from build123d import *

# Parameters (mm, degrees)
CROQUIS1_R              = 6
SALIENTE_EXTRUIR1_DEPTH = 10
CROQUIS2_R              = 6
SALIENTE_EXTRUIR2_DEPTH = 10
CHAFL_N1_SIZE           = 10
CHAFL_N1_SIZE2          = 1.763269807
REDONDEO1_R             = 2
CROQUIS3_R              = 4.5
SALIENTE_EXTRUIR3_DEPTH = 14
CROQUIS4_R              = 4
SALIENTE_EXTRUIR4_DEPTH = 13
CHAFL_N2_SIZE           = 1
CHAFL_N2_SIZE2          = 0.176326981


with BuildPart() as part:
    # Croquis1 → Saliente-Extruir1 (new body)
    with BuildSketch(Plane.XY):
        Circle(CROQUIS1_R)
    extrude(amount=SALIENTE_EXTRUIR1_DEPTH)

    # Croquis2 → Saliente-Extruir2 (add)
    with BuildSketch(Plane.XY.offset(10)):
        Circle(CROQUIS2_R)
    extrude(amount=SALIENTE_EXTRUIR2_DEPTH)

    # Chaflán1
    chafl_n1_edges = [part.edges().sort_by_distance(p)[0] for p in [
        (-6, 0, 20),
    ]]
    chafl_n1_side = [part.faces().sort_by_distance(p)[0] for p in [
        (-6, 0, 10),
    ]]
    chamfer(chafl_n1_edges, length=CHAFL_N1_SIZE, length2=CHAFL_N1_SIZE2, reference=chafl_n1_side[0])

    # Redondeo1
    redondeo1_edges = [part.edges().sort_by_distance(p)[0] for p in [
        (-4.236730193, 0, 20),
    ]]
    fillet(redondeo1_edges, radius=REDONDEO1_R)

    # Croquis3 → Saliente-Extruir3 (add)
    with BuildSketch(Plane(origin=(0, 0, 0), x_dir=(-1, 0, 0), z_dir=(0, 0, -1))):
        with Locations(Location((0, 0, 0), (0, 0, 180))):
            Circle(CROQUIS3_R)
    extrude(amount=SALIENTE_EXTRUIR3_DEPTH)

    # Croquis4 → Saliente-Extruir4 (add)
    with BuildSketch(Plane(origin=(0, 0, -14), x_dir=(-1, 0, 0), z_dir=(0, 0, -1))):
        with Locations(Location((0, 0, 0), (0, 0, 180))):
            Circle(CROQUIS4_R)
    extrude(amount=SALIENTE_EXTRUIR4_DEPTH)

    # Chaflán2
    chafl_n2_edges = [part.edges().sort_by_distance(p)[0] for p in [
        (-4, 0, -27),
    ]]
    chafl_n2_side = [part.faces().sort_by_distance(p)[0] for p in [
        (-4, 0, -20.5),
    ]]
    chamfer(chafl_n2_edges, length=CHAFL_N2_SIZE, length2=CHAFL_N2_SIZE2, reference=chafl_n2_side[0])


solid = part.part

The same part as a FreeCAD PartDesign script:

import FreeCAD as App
import Part
import Sketcher
Q = App.Units.Quantity


def edges_at(feature, points):
    """Names of the edges that pass closest to the given points."""
    edges = feature.Shape.Edges
    near = lambda p: min(range(len(edges)), key=lambda i: edges[i].distToShape(Part.Vertex(*p))[0])
    return sorted({f"Edge{near(p) + 1}" for p in points})

doc = App.newDocument("Part")
body = doc.addObject("PartDesign::Body", "Body")

sketch1 = doc.addObject("Sketcher::SketchObject", "Sketch")
body.addObject(sketch1)
sketch1.AttachmentSupport = (doc.XY_Plane, [""])
sketch1.MapMode = "FlatFace"
sketch1.addGeometry(Part.Circle(App.Vector(0, 0, 0), App.Vector(0, 0, 1), 6), False)
sketch1.addConstraint(Sketcher.Constraint("Coincident", 0, 3, -1, 1))
sketch1.addConstraint(Sketcher.Constraint("Diameter", 0, Q("12 mm")))
pad1 = doc.addObject("PartDesign::Pad", "Pad")
body.addObject(pad1)
pad1.Profile = sketch1
pad1.Length = 10

sketch2 = doc.addObject("Sketcher::SketchObject", "Sketch001")
body.addObject(sketch2)
sketch2.AttachmentSupport = (doc.XY_Plane, [""])
sketch2.MapMode = "FlatFace"
sketch2.AttachmentOffset = App.Placement(App.Vector(0, 0, 10), App.Rotation())
sketch2.addGeometry(Part.Circle(App.Vector(0, 0, 0), App.Vector(0, 0, 1), 6), False)
sketch2.addConstraint(Sketcher.Constraint("Coincident", 0, 3, -1, 1))
sketch2.addConstraint(Sketcher.Constraint("Diameter", 0, Q("12 mm")))
pad2 = doc.addObject("PartDesign::Pad", "Pad001")
body.addObject(pad2)
pad2.Profile = sketch2
pad2.Length = 10
doc.recompute()

chamfer = doc.addObject("PartDesign::Chamfer", "Chamfer")
body.addObject(chamfer)
chamfer.Base = (pad2, edges_at(pad2, [(-6, 0, 20)]))
chamfer.ChamferType = "Two distances"
chamfer.Size = 10
chamfer.Size2 = 1.76327
chamfer.FlipDirection = True
doc.recompute()

fillet = doc.addObject("PartDesign::Fillet", "Fillet")
body.addObject(fillet)
fillet.Base = (chamfer, edges_at(chamfer, [(-4.237, 0, 20)]))
fillet.Radius = 2

sketch3 = doc.addObject("Sketcher::SketchObject", "Sketch002")
body.addObject(sketch3)
sketch3.AttachmentSupport = (doc.XY_Plane, [""])
sketch3.MapMode = "FlatFace"
sketch3.addGeometry(Part.Circle(App.Vector(0, 0, 0), App.Vector(0, 0, 1), 4.5), False)
sketch3.addConstraint(Sketcher.Constraint("Coincident", 0, 3, -1, 1))
sketch3.addConstraint(Sketcher.Constraint("Diameter", 0, Q("9 mm")))
pad3 = doc.addObject("PartDesign::Pad", "Pad002")
body.addObject(pad3)
pad3.Profile = sketch3
pad3.Length = 14
pad3.Reversed = True

sketch4 = doc.addObject("Sketcher::SketchObject", "Sketch003")
body.addObject(sketch4)
sketch4.AttachmentSupport = (doc.XY_Plane, [""])
sketch4.MapMode = "FlatFace"
sketch4.AttachmentOffset = App.Placement(App.Vector(0, 0, -14), App.Rotation())
sketch4.addGeometry(Part.Circle(App.Vector(0, 0, 0), App.Vector(0, 0, 1), 4), False)
sketch4.addConstraint(Sketcher.Constraint("Coincident", 0, 3, -1, 1))
sketch4.addConstraint(Sketcher.Constraint("Diameter", 0, Q("8 mm")))
pad4 = doc.addObject("PartDesign::Pad", "Pad003")
body.addObject(pad4)
pad4.Profile = sketch4
pad4.Length = 13
pad4.Reversed = True
doc.recompute()

chamfer2 = doc.addObject("PartDesign::Chamfer", "Chamfer001")
body.addObject(chamfer2)
chamfer2.Base = (pad4, edges_at(pad4, [(-4, 0, -27)]))
chamfer2.ChamferType = "Two distances"
chamfer2.Size = 1
chamfer2.Size2 = 0.176327

doc.recompute()
